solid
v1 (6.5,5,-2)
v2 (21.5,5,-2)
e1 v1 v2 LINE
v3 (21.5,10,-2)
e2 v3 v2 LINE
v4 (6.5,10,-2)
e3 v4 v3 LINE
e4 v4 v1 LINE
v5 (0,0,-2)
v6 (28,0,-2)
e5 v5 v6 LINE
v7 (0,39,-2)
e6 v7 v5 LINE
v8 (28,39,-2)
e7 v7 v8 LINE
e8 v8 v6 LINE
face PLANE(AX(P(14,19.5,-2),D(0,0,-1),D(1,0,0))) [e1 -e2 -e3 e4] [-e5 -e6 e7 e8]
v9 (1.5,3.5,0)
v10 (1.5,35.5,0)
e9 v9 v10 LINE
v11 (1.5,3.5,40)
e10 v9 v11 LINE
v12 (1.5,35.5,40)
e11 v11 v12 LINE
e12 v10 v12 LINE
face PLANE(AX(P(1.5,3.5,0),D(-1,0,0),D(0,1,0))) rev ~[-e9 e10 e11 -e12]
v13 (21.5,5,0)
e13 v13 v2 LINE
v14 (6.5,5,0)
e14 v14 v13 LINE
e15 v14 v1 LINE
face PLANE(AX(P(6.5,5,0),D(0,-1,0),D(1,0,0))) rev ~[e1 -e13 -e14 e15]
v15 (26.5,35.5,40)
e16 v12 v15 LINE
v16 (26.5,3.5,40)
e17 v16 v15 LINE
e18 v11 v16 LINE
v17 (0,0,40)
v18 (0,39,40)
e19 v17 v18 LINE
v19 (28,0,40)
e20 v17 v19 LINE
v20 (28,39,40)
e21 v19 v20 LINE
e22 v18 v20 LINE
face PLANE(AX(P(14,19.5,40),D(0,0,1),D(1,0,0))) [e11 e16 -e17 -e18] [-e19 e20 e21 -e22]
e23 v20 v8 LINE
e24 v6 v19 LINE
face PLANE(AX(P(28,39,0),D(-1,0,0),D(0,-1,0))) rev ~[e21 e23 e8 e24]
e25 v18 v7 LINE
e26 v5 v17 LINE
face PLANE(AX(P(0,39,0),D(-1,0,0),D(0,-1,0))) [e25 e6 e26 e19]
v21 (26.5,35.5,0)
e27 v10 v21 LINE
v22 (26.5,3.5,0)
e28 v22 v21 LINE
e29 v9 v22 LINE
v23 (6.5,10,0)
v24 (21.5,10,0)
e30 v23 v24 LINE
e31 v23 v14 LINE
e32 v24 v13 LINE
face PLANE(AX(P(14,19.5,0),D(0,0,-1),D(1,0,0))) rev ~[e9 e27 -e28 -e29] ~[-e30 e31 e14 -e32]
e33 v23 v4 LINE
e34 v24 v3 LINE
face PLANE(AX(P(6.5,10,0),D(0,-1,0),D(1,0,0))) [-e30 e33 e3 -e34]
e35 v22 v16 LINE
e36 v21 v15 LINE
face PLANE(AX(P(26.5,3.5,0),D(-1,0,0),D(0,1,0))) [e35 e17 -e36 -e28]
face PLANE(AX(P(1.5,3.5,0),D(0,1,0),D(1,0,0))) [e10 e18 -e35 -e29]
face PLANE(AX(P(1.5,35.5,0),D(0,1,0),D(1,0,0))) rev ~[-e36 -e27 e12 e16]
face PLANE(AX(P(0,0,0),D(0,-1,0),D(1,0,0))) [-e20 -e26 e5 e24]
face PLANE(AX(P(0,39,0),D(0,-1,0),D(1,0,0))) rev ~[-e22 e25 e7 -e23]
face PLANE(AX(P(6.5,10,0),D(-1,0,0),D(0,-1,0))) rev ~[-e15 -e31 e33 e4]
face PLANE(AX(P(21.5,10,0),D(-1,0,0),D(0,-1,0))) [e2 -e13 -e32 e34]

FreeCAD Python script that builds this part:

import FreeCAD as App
import Part
import Sketcher
from FreeCAD import Vector


def add_polygon(sketch, points):
    """Adds a closed chain of lines whose ends are joined by coincident constraints."""
    first, n = sketch.GeometryCount, len(points)
    for a, b in zip(points, points[1:] + points[:1]):
        sketch.addGeometry(Part.LineSegment(App.Vector(*a, 0), App.Vector(*b, 0)), False)
    for i in range(n):
        sketch.addConstraint(Sketcher.Constraint("Coincident", first + i, 2, first + (i + 1) % n, 1))

doc = App.newDocument("Part")
body = doc.addObject("PartDesign::Body", "Body")

# Sketch on XY plane
sketch1 = body.newObject("Sketcher::SketchObject", "Sketch")
sketch1.AttachmentSupport = (doc.getObject("XY_Plane"), [""])
sketch1.MapMode = "FlatFace"
add_polygon(sketch1, [(0, 39), (0, 0), (28, 0), (28, 39)])  # lines 0-3
add_polygon(sketch1, [(26.5, 3.5), (1.5, 3.5), (1.5, 35.5), (26.5, 35.5)])  # lines 4-7
sketch1.addConstraint(Sketcher.Constraint("Vertical", 0))
sketch1.addConstraint(Sketcher.Constraint("Horizontal", 1))
sketch1.addConstraint(Sketcher.Constraint("Vertical", 2))
sketch1.addConstraint(Sketcher.Constraint("Horizontal", 3))
sketch1.addConstraint(Sketcher.Constraint("Horizontal", 4))
sketch1.addConstraint(Sketcher.Constraint("Vertical", 5))
sketch1.addConstraint(Sketcher.Constraint("Horizontal", 6))
sketch1.addConstraint(Sketcher.Constraint("Vertical", 7))
sketch1.addConstraint(Sketcher.Constraint("Coincident", 0, 2, -1, 1))
sketch1.addConstraint(Sketcher.Constraint("DistanceX", 1, 1, 1, 2, 28.0))
sketch1.addConstraint(Sketcher.Constraint("DistanceX", 4, 2, 4, 1, 25.0))
sketch1.addConstraint(Sketcher.Constraint("DistanceY", 0, 2, 0, 1, 39.0))
sketch1.addConstraint(Sketcher.Constraint("DistanceY", 5, 1, 5, 2, 32.0))
sketch1.addConstraint(Sketcher.Constraint("DistanceX", -1, 1, 4, 2, 1.5))
sketch1.addConstraint(Sketcher.Constraint("DistanceY", -1, 1, 4, 2, 3.5))
pad1 = body.newObject("PartDesign::Pad", "Pad")
pad1.Profile = sketch1
pad1.Length = 40

# Sketch on XY plane
sketch2 = body.newObject("Sketcher::SketchObject", "Sketch001")
sketch2.AttachmentSupport = (doc.getObject("XY_Plane"), [""])
sketch2.MapMode = "FlatFace"
add_polygon(sketch2, [(0, 0), (0, 39), (28, 39), (28, 0)])  # lines 0-3
add_polygon(sketch2, [(21.5, 10), (6.5, 10), (6.5, 5), (21.5, 5)])  # lines 4-7
sketch2.addConstraint(Sketcher.Constraint("Vertical", 0))
sketch2.addConstraint(Sketcher.Constraint("Horizontal", 1))
sketch2.addConstraint(Sketcher.Constraint("Vertical", 2))
sketch2.addConstraint(Sketcher.Constraint("Horizontal", 3))
sketch2.addConstraint(Sketcher.Constraint("Horizontal", 4))
sketch2.addConstraint(Sketcher.Constraint("Vertical", 5))
sketch2.addConstraint(Sketcher.Constraint("Horizontal", 6))
sketch2.addConstraint(Sketcher.Constraint("Vertical", 7))
sketch2.addConstraint(Sketcher.Constraint("Coincident", 3, 2, -1, 1))
sketch2.addConstraint(Sketcher.Constraint("DistanceX", 1, 1, 1, 2, 28.0))
sketch2.addConstraint(Sketcher.Constraint("DistanceX", 4, 2, 4, 1, 15.0))
sketch2.addConstraint(Sketcher.Constraint("DistanceY", 0, 1, 0, 2, 39.0))
sketch2.addConstraint(Sketcher.Constraint("DistanceY", 5, 2, 5, 1, 5.0))
sketch2.addConstraint(Sketcher.Constraint("DistanceY", -1, 1, 4, 2, 10.0))
sketch2.addConstraint(Sketcher.Constraint("DistanceX", -1, 1, 4, 2, 6.5))
pad2 = body.newObject("PartDesign::Pad", "Pad001")
pad2.Profile = sketch2
pad2.Length = 2
pad2.Reversed = True

doc.recompute()
